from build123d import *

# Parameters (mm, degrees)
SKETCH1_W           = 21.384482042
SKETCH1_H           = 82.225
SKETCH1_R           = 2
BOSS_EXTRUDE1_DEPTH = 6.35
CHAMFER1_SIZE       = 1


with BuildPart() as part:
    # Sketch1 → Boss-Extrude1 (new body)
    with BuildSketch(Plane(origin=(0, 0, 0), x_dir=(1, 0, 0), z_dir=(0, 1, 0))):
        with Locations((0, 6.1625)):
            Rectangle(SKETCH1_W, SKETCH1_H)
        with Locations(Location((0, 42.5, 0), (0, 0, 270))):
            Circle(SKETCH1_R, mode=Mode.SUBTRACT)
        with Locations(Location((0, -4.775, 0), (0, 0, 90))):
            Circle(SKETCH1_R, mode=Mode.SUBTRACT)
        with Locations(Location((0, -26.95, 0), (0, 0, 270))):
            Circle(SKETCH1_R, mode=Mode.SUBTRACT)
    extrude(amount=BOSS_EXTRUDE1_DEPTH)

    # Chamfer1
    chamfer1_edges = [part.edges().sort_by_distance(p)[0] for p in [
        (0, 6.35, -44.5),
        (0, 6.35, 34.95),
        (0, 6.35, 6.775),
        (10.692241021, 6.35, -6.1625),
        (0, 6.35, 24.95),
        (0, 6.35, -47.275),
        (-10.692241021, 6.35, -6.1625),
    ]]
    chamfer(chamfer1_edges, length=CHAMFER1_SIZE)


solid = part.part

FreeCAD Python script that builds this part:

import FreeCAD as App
import Part
import Sketcher
from FreeCAD import Vector
Q = App.Units.Quantity


def edges_at(feature, points):
    """Names of the edges that pass closest to the given points."""
    edges = feature.Shape.Edges
    near = lambda p: min(range(len(edges)), key=lambda i: edges[i].distToShape(Part.Vertex(*p))[0])
    return sorted({f"Edge{near(p) + 1}" for p in points})


def add_polygon(sketch, points):
    """Adds a closed chain of lines whose ends are joined by coincident constraints."""
    first, n = sketch.GeometryCount, len(points)
    for a, b in zip(points, points[1:] + points[:1]):
        sketch.addGeometry(Part.LineSegment(App.Vector(*a, 0), App.Vector(*b, 0)), False)
    for i in range(n):
        sketch.addConstraint(Sketcher.Constraint("Coincident", first + i, 2, first + (i + 1) % n, 1))

doc = App.newDocument("Part")
body = doc.addObject("PartDesign::Body", "Body")

sketch1 = body.newObject("Sketcher::SketchObject", "Sketch")
sketch1.AttachmentSupport = (doc.getObject("XZ_Plane"), [""])
sketch1.MapMode = "FlatFace"
add_polygon(sketch1, [(-10.692241, -47.275), (-10.692241, 34.95), (10.692241, 34.95), (10.692241, -47.275)])
sketch1.addGeometry(Part.Circle(Vector(0, 26.95, 0), Vector(0, 0, 1), 2), False)
sketch1.addGeometry(Part.Circle(Vector(0, 4.775, 0), Vector(0, 0, 1), 2), False)
sketch1.addGeometry(Part.Circle(Vector(0, -42.5, 0), Vector(0, 0, 1), 2), False)
sketch1.addConstraint([
    Sketcher.Constraint("Vertical", 0),
    Sketcher.Constraint("Horizontal", 1),
    Sketcher.Constraint("Vertical", 2),
    Sketcher.Constraint("Horizontal", 3),
    Sketcher.Constraint("Equal", 4, 5),
    Sketcher.Constraint("Equal", 5, 6),
    Sketcher.Constraint("PointOnObject", 4, 3, -2),
    Sketcher.Constraint("PointOnObject", 5, 3, -2),
    Sketcher.Constraint("PointOnObject", 6, 3, -2),
    Sketcher.Constraint("Diameter", 4, Q("4 mm")),
    Sketcher.Constraint("DistanceY", 4, 3, 0, 2, Q("8 mm")),
    Sketcher.Constraint("DistanceY", 6, 3, -1, 1, Q("42.5 mm")),
    Sketcher.Constraint("DistanceY", 0, 1, 0, 2, Q("82.225 mm")),
    Sketcher.Constraint("DistanceY", -1, 1, 4, 3, Q("26.95 mm")),
    Sketcher.Constraint("DistanceY", 2, 2, 5, 3, Q("52.05 mm")),
    Sketcher.Constraint("DistanceX", 1, 1, 1, 2, Q("21.384482 mm")),
    Sketcher.Constraint("DistanceX", 0, 2, -1, 1, Q("10.692241 mm")),
])
pad1 = body.newObject("PartDesign::Pad", "Pad")
pad1.Profile = sketch1
pad1.Length = 6.35
pad1.Reversed = True
doc.recompute()

chamfer = body.newObject("PartDesign::Chamfer", "Chamfer")
chamfer.Base = (pad1, edges_at(pad1, [
    (0, 6.35, -44.5),
    (0, 6.35, 34.95),
    (0, 6.35, 6.775),
    (10.692, 6.35, -6.162),
    (0, 6.35, 24.95),
    (0, 6.35, -47.275),
    (-10.692, 6.35, -6.162),
]))
chamfer.Size = 1

doc.recompute()
